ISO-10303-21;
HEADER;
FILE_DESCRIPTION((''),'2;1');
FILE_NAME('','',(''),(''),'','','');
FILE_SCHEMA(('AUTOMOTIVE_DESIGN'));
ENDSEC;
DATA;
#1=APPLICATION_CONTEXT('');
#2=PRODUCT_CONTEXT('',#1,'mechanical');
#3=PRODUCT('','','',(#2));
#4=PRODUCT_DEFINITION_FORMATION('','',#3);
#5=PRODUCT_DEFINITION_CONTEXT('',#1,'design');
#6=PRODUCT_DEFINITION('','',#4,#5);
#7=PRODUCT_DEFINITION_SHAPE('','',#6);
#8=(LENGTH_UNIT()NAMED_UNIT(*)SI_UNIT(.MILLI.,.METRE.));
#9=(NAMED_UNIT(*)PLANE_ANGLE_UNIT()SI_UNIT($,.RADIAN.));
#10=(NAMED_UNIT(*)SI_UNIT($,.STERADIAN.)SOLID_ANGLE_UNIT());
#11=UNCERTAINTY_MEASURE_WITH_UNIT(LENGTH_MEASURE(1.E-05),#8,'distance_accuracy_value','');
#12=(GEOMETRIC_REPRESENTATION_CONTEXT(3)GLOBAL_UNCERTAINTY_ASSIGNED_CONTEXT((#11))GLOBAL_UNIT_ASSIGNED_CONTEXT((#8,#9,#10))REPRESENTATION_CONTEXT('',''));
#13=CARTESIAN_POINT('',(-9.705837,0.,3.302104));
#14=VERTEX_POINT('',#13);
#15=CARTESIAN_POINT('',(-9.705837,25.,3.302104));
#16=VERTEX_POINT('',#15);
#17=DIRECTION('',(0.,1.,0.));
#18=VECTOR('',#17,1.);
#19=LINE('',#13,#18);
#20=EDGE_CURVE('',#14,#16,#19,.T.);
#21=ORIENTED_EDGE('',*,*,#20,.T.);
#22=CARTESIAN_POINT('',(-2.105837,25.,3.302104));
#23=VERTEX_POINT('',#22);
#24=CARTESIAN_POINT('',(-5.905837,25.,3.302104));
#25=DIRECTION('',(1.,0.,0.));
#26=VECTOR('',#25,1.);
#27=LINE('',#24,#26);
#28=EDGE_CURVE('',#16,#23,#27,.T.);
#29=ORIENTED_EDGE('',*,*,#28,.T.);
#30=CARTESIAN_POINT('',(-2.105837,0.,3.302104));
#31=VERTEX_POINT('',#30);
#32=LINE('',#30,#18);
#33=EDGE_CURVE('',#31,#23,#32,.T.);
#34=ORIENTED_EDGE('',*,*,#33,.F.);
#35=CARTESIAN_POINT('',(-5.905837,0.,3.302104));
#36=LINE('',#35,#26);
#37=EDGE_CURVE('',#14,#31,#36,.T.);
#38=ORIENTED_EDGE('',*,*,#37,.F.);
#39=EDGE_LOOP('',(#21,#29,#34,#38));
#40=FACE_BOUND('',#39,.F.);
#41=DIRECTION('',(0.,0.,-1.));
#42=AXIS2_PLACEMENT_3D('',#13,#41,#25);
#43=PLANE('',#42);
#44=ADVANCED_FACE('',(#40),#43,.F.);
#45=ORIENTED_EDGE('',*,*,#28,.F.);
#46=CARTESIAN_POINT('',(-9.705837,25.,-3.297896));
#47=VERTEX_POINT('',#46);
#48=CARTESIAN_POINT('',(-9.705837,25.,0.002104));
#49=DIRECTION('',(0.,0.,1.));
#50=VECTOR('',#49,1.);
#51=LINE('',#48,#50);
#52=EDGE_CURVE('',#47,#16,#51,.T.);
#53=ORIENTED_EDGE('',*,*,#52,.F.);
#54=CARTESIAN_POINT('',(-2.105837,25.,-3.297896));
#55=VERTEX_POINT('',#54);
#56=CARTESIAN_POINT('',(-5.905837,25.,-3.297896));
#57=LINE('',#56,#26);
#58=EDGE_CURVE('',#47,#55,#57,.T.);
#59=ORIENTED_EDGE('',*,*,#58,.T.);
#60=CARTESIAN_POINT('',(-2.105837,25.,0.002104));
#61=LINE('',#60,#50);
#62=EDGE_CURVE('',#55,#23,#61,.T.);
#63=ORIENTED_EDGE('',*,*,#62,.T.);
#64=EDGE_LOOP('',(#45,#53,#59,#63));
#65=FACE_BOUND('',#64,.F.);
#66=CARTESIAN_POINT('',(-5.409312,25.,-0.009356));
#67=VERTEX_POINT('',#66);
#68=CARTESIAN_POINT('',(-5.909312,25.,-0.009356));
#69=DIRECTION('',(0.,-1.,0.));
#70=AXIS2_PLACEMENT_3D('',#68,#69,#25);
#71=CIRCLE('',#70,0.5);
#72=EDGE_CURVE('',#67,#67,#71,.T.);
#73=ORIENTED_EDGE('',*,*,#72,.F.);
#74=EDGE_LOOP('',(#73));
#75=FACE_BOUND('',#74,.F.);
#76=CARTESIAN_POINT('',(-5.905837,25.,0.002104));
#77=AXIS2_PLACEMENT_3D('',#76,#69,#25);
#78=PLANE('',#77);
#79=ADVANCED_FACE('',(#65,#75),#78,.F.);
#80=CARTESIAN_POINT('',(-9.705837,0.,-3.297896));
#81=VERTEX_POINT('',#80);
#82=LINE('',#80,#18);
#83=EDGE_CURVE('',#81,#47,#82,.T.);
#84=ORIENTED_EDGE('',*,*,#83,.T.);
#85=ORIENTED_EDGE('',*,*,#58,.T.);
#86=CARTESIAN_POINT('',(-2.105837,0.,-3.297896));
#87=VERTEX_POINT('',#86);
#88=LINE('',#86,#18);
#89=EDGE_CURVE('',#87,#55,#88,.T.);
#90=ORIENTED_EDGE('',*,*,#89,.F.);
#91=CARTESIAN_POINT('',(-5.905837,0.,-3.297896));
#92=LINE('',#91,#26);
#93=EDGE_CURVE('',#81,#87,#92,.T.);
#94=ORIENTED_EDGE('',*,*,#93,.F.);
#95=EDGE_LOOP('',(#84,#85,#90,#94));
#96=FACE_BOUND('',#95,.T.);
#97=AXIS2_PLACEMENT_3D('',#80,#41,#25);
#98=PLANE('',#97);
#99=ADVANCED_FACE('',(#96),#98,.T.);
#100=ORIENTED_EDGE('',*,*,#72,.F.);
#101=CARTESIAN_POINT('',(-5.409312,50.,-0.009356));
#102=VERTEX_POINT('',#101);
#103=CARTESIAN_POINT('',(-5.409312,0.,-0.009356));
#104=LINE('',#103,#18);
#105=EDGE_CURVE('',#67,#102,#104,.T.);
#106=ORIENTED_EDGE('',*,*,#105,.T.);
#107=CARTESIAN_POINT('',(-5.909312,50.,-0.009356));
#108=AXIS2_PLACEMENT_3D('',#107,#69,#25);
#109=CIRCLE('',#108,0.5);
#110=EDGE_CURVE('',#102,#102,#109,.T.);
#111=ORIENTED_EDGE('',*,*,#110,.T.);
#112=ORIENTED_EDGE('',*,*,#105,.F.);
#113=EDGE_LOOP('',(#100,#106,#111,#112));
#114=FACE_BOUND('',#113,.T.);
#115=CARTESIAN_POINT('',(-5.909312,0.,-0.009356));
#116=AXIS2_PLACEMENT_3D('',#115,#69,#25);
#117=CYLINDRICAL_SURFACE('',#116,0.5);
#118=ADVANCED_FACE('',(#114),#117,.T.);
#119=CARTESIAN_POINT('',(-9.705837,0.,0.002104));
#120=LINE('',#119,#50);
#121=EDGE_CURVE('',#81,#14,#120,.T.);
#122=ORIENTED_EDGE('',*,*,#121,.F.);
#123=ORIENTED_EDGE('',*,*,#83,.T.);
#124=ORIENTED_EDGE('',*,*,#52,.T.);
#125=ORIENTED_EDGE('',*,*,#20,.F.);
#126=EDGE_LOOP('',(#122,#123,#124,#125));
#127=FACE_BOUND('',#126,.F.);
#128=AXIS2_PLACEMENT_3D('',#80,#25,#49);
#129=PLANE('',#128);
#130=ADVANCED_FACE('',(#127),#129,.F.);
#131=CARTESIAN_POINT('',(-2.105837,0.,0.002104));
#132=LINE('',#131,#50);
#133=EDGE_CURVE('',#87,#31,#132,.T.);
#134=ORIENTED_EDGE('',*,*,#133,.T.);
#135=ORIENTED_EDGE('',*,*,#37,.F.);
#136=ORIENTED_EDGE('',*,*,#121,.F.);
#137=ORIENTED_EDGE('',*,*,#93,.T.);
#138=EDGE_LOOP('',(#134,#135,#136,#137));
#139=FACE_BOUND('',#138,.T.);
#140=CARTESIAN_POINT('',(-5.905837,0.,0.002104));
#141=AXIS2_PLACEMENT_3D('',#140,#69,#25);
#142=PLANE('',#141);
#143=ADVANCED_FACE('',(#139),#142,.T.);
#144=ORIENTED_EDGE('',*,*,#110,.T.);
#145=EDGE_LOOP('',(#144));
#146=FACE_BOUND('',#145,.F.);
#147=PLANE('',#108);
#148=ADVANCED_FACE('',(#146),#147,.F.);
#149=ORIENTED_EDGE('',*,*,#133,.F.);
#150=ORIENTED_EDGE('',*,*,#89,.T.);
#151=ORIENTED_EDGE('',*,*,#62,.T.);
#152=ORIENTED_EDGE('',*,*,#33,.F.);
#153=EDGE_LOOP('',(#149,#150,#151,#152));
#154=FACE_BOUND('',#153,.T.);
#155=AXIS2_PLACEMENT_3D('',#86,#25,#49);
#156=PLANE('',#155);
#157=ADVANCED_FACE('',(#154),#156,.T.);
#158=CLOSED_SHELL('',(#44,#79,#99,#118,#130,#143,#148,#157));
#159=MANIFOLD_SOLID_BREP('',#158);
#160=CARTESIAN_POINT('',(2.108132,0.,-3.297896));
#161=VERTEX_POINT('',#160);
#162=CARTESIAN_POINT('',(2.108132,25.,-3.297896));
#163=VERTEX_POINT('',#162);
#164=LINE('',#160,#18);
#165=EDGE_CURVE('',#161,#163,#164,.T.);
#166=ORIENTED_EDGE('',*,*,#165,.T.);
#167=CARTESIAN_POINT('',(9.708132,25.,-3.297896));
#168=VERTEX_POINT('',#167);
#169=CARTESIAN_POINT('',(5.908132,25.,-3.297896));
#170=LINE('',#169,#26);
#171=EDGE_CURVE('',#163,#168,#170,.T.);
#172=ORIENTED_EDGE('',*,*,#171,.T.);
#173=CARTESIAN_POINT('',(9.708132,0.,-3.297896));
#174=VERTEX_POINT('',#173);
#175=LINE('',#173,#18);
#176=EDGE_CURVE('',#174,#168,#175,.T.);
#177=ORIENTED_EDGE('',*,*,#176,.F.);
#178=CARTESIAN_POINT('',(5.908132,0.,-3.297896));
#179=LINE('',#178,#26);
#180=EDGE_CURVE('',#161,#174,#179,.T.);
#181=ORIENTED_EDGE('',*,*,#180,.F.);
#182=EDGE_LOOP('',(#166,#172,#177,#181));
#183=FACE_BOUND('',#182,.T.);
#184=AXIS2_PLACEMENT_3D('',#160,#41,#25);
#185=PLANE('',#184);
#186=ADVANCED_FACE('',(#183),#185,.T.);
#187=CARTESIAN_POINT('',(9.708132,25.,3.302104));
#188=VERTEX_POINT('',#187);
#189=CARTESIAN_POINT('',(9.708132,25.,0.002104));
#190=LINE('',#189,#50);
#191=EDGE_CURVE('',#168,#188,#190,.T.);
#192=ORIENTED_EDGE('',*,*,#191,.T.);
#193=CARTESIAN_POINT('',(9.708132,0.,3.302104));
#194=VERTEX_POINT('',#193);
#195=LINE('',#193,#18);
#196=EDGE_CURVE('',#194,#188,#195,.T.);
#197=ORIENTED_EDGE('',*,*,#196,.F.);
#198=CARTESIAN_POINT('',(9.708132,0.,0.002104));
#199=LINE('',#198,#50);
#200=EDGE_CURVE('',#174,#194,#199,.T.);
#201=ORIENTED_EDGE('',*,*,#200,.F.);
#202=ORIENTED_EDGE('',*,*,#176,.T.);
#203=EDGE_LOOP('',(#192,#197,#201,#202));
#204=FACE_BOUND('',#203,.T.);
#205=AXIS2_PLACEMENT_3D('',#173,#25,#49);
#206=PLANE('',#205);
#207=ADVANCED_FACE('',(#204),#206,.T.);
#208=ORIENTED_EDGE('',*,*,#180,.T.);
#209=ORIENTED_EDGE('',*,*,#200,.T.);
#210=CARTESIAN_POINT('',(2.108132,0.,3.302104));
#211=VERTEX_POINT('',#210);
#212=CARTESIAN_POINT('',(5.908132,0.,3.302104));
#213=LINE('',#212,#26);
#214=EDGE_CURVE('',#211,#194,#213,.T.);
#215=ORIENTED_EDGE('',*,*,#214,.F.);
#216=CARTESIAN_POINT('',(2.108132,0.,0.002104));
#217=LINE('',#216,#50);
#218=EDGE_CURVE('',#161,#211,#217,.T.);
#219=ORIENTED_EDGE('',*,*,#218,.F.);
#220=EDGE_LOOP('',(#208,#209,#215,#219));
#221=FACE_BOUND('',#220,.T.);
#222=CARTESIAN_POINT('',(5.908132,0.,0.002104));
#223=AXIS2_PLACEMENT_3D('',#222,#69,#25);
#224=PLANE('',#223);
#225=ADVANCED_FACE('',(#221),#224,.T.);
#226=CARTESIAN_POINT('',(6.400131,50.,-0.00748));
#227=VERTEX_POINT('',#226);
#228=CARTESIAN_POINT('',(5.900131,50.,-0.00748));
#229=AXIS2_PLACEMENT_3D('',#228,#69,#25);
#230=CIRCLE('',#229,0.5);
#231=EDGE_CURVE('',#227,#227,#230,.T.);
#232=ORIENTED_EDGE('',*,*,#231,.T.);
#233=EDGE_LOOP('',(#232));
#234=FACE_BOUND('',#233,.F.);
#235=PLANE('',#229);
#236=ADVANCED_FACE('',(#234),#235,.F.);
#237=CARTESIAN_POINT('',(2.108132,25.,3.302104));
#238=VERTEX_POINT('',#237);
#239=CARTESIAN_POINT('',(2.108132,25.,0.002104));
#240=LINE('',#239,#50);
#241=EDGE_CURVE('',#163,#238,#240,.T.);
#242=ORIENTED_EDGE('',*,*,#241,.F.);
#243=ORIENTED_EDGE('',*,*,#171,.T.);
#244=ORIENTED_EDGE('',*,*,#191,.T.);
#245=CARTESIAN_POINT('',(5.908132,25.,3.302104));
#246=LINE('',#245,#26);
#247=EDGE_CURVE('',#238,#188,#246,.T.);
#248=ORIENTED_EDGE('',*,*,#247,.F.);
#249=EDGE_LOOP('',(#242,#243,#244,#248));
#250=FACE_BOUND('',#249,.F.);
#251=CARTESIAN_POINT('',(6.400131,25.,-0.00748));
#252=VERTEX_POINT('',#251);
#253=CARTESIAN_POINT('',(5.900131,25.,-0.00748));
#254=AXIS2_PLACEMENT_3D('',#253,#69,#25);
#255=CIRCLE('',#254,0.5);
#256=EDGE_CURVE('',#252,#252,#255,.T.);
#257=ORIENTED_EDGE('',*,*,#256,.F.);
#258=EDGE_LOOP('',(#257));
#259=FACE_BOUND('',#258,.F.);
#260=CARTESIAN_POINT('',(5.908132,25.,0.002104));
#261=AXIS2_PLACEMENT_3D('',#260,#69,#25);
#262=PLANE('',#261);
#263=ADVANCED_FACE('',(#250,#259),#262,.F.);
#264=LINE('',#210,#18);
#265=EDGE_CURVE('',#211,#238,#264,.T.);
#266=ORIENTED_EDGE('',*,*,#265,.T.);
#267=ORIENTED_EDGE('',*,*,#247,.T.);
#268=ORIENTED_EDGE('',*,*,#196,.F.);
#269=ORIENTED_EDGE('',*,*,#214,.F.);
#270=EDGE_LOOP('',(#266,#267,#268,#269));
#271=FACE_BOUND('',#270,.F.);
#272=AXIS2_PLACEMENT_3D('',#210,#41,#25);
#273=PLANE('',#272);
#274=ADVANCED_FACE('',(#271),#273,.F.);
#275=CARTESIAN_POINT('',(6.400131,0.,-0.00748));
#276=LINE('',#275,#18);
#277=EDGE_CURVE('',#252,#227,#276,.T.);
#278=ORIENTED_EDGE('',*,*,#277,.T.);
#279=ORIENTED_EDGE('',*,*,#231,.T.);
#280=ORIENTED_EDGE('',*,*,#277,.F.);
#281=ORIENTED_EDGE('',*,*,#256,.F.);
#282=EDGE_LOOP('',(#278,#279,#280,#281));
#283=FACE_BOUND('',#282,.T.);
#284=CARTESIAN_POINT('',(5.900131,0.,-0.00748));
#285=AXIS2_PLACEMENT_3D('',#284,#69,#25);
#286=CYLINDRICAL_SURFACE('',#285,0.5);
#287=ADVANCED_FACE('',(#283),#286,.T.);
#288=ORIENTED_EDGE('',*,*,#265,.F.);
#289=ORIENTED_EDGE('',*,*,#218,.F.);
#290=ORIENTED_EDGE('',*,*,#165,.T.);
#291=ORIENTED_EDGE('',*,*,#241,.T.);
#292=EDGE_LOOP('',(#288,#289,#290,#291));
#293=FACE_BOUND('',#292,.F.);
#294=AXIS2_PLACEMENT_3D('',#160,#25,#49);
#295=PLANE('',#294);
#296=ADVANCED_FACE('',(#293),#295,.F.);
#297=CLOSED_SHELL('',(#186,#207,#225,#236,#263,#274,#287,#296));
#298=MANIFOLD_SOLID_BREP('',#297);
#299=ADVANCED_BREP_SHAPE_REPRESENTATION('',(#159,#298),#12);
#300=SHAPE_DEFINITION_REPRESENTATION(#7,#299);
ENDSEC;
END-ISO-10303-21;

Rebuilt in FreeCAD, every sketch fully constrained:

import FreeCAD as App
import Part
import Sketcher
Q = App.Units.Quantity


def add_polygon(sketch, points):
    """Adds a closed chain of lines whose ends are joined by coincident constraints."""
    first, n = sketch.GeometryCount, len(points)
    for a, b in zip(points, points[1:] + points[:1]):
        sketch.addGeometry(Part.LineSegment(App.Vector(*a, 0), App.Vector(*b, 0)), False)
    for i in range(n):
        sketch.addConstraint(Sketcher.Constraint("Coincident", first + i, 2, first + (i + 1) % n, 1))

doc = App.newDocument("Part")
body = doc.addObject("PartDesign::Body", "Body")
body.AllowCompound = True

# Sketch on XZ plane
sketch1 = body.newObject("Sketcher::SketchObject", "Sketch")
sketch1.AttachmentSupport = (doc.getObject("XZ_Plane"), [""])
sketch1.MapMode = "FlatFace"
sketch1.addGeometry([
    Part.Circle(App.Vector(5.900131, -0.00748, 0), App.Vector(0, 0, 1), 0.5),
    Part.Circle(App.Vector(-5.909312, -0.009356, 0), App.Vector(0, 0, 1), 0.5),
], False)
sketch1.addConstraint([
    Sketcher.Constraint("Equal", 0, 1),
    Sketcher.Constraint("Diameter", 0, Q("1 mm")),
    Sketcher.Constraint("DistanceX", -1, 1, 0, 3, Q("5.900131 mm")),
    Sketcher.Constraint("DistanceY", 0, 3, -1, 1, Q("0.00748 mm")),
    Sketcher.Constraint("DistanceX", 1, 3, -1, 1, Q("5.909312 mm")),
    Sketcher.Constraint("DistanceY", 1, 3, -1, 1, Q("0.009356 mm")),
])
pad1 = body.newObject("PartDesign::Pad", "Pad")
pad1.Profile = sketch1
pad1.Length = 50
pad1.Reversed = True

# Sketch on XZ plane
sketch2 = body.newObject("Sketcher::SketchObject", "Sketch001")
sketch2.AttachmentSupport = (doc.getObject("XZ_Plane"), [""])
sketch2.MapMode = "FlatFace"
add_polygon(sketch2, [(2.108132, 3.302104), (2.108132, -3.297896), (9.708132, -3.297896), (9.708132, 3.302104)])  # lines 0-3
sketch2.addGeometry(Part.Circle(App.Vector(5.900131, -0.00748, 0), App.Vector(0, 0, 1), 0.5), False)  # 4
add_polygon(sketch2, [(-9.705837, 3.302104), (-9.705837, -3.297896), (-2.105837, -3.297896), (-2.105837, 3.302104)])  # lines 5-8
sketch2.addGeometry(Part.Circle(App.Vector(-5.909312, -0.009356, 0), App.Vector(0, 0, 1), 0.5), False)  # 9
sketch2.addConstraint([
    Sketcher.Constraint("Vertical", 0),
    Sketcher.Constraint("Horizontal", 1),
    Sketcher.Constraint("Vertical", 2),
    Sketcher.Constraint("Horizontal", 3),
    Sketcher.Constraint("Vertical", 5),
    Sketcher.Constraint("Horizontal", 6),
    Sketcher.Constraint("Vertical", 7),
    Sketcher.Constraint("Horizontal", 8),
    Sketcher.Constraint("Equal", 4, 9),
    Sketcher.Constraint("Horizontal", 1, 2, 5, 2),
    Sketcher.Constraint("Horizontal", 3, 2, 7, 2),
    Sketcher.Constraint("Equal", 3, 6),
    Sketcher.Constraint("Diameter", 4, Q("1 mm")),
    Sketcher.Constraint("DistanceX", 1, 1, 1, 2, Q("7.6 mm")),
    Sketcher.Constraint("DistanceY", 0, 2, 0, 1, Q("6.6 mm")),
    Sketcher.Constraint("DistanceX", 0, 2, 4, 3, Q("3.791999 mm")),
    Sketcher.Constraint("DistanceX", -1, 1, 4, 3, Q("5.900131 mm")),
    Sketcher.Constraint("DistanceY", 4, 3, -1, 1, Q("0.00748 mm")),
    Sketcher.Constraint("DistanceY", 0, 2, 9, 3, Q("3.28854 mm")),
    Sketcher.Constraint("DistanceX", 5, 2, 0, 2, Q("11.813969 mm")),
    Sketcher.Constraint("DistanceX", 9, 3, -1, 1, Q("5.909312 mm")),
    Sketcher.Constraint("DistanceY", 9, 3, -1, 1, Q("0.009356 mm")),
])
pad2 = body.newObject("PartDesign::Pad", "Pad001")
pad2.Profile = sketch2
pad2.Length = 25
pad2.Reversed = True

doc.recompute()
